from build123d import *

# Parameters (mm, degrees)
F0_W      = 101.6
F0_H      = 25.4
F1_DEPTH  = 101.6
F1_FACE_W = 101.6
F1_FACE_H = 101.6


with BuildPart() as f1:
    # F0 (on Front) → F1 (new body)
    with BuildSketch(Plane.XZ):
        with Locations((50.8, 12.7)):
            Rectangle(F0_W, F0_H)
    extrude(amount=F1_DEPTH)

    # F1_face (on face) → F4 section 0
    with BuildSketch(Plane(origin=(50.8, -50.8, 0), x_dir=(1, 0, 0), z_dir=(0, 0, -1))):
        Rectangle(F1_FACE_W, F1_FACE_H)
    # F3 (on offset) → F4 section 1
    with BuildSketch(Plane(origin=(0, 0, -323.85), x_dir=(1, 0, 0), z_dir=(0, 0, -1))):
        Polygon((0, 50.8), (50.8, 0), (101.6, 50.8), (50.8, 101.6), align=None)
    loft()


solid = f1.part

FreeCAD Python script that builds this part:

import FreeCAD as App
import Part
import Sketcher
Q = App.Units.Quantity

doc = App.newDocument("Part")
params = doc.addObject("Spreadsheet::Sheet", "Params")
for row, (alias, value) in enumerate([
    ("sketch1_width", "4 in"),
    ("sketch1_height", "1 in"),
    ("pad1_length", "4 in"),
    ("sketch2_width", "4 in"),
], start=1):
    params.set(f"A{row}", alias)
    params.set(f"B{row}", "=" + value)
    params.setAlias(f"B{row}", alias)

body = doc.addObject("PartDesign::Body", "Body")

sketch1 = body.newObject("Sketcher::SketchObject", "Sketch")
sketch1.AttachmentSupport = (doc.getObject("XZ_Plane"), [""])
sketch1.MapMode = "FlatFace"
sketch1.addGeometry(Part.LineSegment(App.Vector(0, 25.4, 0), App.Vector(0, 0, 0)), False)
sketch1.addGeometry(Part.LineSegment(App.Vector(0, 0, 0), App.Vector(101.6, 0, 0)), False)
sketch1.addGeometry(Part.LineSegment(App.Vector(101.6, 0, 0), App.Vector(101.6, 25.4, 0)), False)
sketch1.addGeometry(Part.LineSegment(App.Vector(101.6, 25.4, 0), App.Vector(0, 25.4, 0)), False)
sketch1.addConstraint(Sketcher.Constraint("Coincident", 0, 2, 1, 1))
sketch1.addConstraint(Sketcher.Constraint("Coincident", 1, 2, 2, 1))
sketch1.addConstraint(Sketcher.Constraint("Coincident", 2, 2, 3, 1))
sketch1.addConstraint(Sketcher.Constraint("Coincident", 3, 2, 0, 1))
sketch1.addConstraint(Sketcher.Constraint("Vertical", 0))
sketch1.addConstraint(Sketcher.Constraint("Horizontal", 1))
sketch1.addConstraint(Sketcher.Constraint("Vertical", 2))
sketch1.addConstraint(Sketcher.Constraint("Horizontal", 3))
sketch1.addConstraint(Sketcher.Constraint("Coincident", 0, 2, -1, 1))
sketch1.addConstraint(Sketcher.Constraint("DistanceX", 1, 1, 1, 2, Q("4 in")))
sketch1.addConstraint(Sketcher.Constraint("DistanceY", 0, 2, 0, 1, Q("1 in")))
sketch1.setExpression("Constraints[9]", "Params.sketch1_width")
sketch1.setExpression("Constraints[10]", "Params.sketch1_height")
pad1 = body.newObject("PartDesign::Pad", "Pad")
pad1.Profile = sketch1
pad1.setExpression("Length", "Params.pad1_length")

sketch2 = body.newObject("Sketcher::SketchObject", "Sketch001")
sketch2.AttachmentSupport = (doc.getObject("XY_Plane"), [""])
sketch2.MapMode = "FlatFace"
sketch2.addGeometry(Part.LineSegment(App.Vector(0, -101.6, 0), App.Vector(0, 0, 0)), False)
sketch2.addGeometry(Part.LineSegment(App.Vector(0, 0, 0), App.Vector(101.6, 0, 0)), False)
sketch2.addGeometry(Part.LineSegment(App.Vector(101.6, 0, 0), App.Vector(101.6, -101.6, 0)), False)
sketch2.addGeometry(Part.LineSegment(App.Vector(101.6, -101.6, 0), App.Vector(0, -101.6, 0)), False)
sketch2.addConstraint(Sketcher.Constraint("Coincident", 0, 2, 1, 1))
sketch2.addConstraint(Sketcher.Constraint("Coincident", 1, 2, 2, 1))
sketch2.addConstraint(Sketcher.Constraint("Coincident", 2, 2, 3, 1))
sketch2.addConstraint(Sketcher.Constraint("Coincident", 3, 2, 0, 1))
sketch2.addConstraint(Sketcher.Constraint("Vertical", 0))
sketch2.addConstraint(Sketcher.Constraint("Horizontal", 1))
sketch2.addConstraint(Sketcher.Constraint("Vertical", 2))
sketch2.addConstraint(Sketcher.Constraint("Horizontal", 3))
sketch2.addConstraint(Sketcher.Constraint("Coincident", 0, 2, -1, 1))
sketch2.addConstraint(Sketcher.Constraint("Equal", 3, 0))
sketch2.addConstraint(Sketcher.Constraint("DistanceX", 1, 1, 1, 2, Q("4 in")))
sketch2.setExpression("Constraints[10]", "Params.sketch2_width")

sketch3 = body.newObject("Sketcher::SketchObject", "Sketch002")
sketch3.AttachmentSupport = (doc.getObject("XY_Plane"), [""])
sketch3.MapMode = "FlatFace"
sketch3.AttachmentOffset = App.Placement(App.Vector(0, 0, -12.75 * 25.4), App.Rotation())
sketch3.addGeometry(Part.LineSegment(App.Vector(0, -50.8, 0), App.Vector(50.8, 0, 0)), False)
sketch3.addGeometry(Part.LineSegment(App.Vector(50.8, 0, 0), App.Vector(101.6, -50.8, 0)), False)
sketch3.addGeometry(Part.LineSegment(App.Vector(101.6, -50.8, 0), App.Vector(50.8, -101.6, 0)), False)
sketch3.addGeometry(Part.LineSegment(App.Vector(50.8, -101.6, 0), App.Vector(0, -50.8, 0)), False)
sketch3.addConstraint(Sketcher.Constraint("Coincident", 0, 2, 1, 1))
sketch3.addConstraint(Sketcher.Constraint("Coincident", 1, 2, 2, 1))
sketch3.addConstraint(Sketcher.Constraint("Coincident", 2, 2, 3, 1))
sketch3.addConstraint(Sketcher.Constraint("Coincident", 3, 2, 0, 1))
sketch3.addConstraint(Sketcher.Constraint("PointOnObject", 0, 2, -1))
sketch3.addConstraint(Sketcher.Constraint("PointOnObject", 3, 2, -2))
sketch3.addConstraint(Sketcher.Constraint("Perpendicular", 0, 1))
sketch3.addConstraint(Sketcher.Constraint("Perpendicular", 1, 2))
sketch3.addConstraint(Sketcher.Constraint("Perpendicular", 2, 3))
sketch3.addConstraint(Sketcher.Constraint("Horizontal", 1, 2, 3, 2))
sketch3.addConstraint(Sketcher.Constraint("Vertical", 0, 2, 2, 2))
sketch3.addConstraint(Sketcher.Constraint("DistanceX", -1, 1, 0, 2, Q("2 in")))

additiveloft = body.newObject("PartDesign::AdditiveLoft", "AdditiveLoft")
additiveloft.Profile = sketch2
additiveloft.Sections = [sketch3]

doc.recompute()
